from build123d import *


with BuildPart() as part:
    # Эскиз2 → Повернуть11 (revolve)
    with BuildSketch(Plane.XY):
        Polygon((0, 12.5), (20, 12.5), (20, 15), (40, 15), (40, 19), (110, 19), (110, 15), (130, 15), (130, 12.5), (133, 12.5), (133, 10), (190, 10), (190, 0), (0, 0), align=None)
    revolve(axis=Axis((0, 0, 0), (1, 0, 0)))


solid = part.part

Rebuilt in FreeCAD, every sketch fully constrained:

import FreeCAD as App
import Part
import Sketcher
from FreeCAD import Vector

doc = App.newDocument("Part")
body = doc.addObject("PartDesign::Body", "Body")

# Sketch on XY plane
sketch1 = body.newObject("Sketcher::SketchObject", "Sketch")
sketch1.AttachmentSupport = (doc.getObject("XY_Plane"), [""])
sketch1.MapMode = "FlatFace"
sketch1.addGeometry([
    Part.LineSegment(Vector(20, 12.5, 0), Vector(0, 12.5, 0)),  # 0
    Part.LineSegment(Vector(0, 12.5, 0), Vector(0, 0, 0)),  # 1
    Part.LineSegment(Vector(0, 0, 0), Vector(190, 0, 0)),  # 2
    Part.LineSegment(Vector(190, 0, 0), Vector(190, 10, 0)),  # 3
    Part.LineSegment(Vector(190, 10, 0), Vector(133, 10, 0)),  # 4
    Part.LineSegment(Vector(133, 10, 0), Vector(133, 12.5, 0)),  # 5
    Part.LineSegment(Vector(133, 12.5, 0), Vector(130, 12.5, 0)),  # 6
    Part.LineSegment(Vector(130, 12.5, 0), Vector(130, 15, 0)),  # 7
    Part.LineSegment(Vector(130, 15, 0), Vector(110, 15, 0)),  # 8
    Part.LineSegment(Vector(110, 15, 0), Vector(110, 19, 0)),  # 9
    Part.LineSegment(Vector(110, 19, 0), Vector(40, 19, 0)),  # 10
    Part.LineSegment(Vector(40, 19, 0), Vector(40, 15, 0)),  # 11
    Part.LineSegment(Vector(40, 15, 0), Vector(20, 15, 0)),  # 12
    Part.LineSegment(Vector(20, 15, 0), Vector(20, 12.5, 0)),  # 13
], False)
sketch1.addConstraint([
    Sketcher.Constraint("Coincident", 0, 2, 1, 1),
    Sketcher.Constraint("Coincident", 1, 2, 2, 1),
    Sketcher.Constraint("Coincident", 2, 2, 3, 1),
    Sketcher.Constraint("Coincident", 3, 2, 4, 1),
    Sketcher.Constraint("Coincident", 4, 2, 5, 1),
    Sketcher.Constraint("Coincident", 5, 2, 6, 1),
    Sketcher.Constraint("Coincident", 6, 2, 7, 1),
    Sketcher.Constraint("Coincident", 7, 2, 8, 1),
    Sketcher.Constraint("Coincident", 8, 2, 9, 1),
    Sketcher.Constraint("Coincident", 9, 2, 10, 1),
    Sketcher.Constraint("Coincident", 10, 2, 11, 1),
    Sketcher.Constraint("Coincident", 11, 2, 12, 1),
    Sketcher.Constraint("Coincident", 12, 2, 13, 1),
    Sketcher.Constraint("Coincident", 13, 2, 0, 1),
    Sketcher.Constraint("Horizontal", 0),
    Sketcher.Constraint("Vertical", 1),
    Sketcher.Constraint("Horizontal", 2),
    Sketcher.Constraint("Vertical", 3),
    Sketcher.Constraint("Horizontal", 4),
    Sketcher.Constraint("Vertical", 5),
    Sketcher.Constraint("Horizontal", 6),
    Sketcher.Constraint("Vertical", 7),
    Sketcher.Constraint("Horizontal", 8),
    Sketcher.Constraint("Vertical", 9),
    Sketcher.Constraint("Horizontal", 10),
    Sketcher.Constraint("Vertical", 11),
    Sketcher.Constraint("Horizontal", 12),
    Sketcher.Constraint("Vertical", 13),
    Sketcher.Constraint("Coincident", 1, 2, -1, 1),
    Sketcher.Constraint("Horizontal", 0, 2, 5, 2),
    Sketcher.Constraint("Horizontal", 8, 2, 11, 2),
    Sketcher.Constraint("Equal", 0, 8),
    Sketcher.Constraint("Equal", 8, 12),
    Sketcher.Constraint("Equal", 5, 7),
    Sketcher.Constraint("DistanceX", 0, 2, 0, 1, 20.0),
    Sketcher.Constraint("DistanceX", 2, 1, 2, 2, 190.0),
    Sketcher.Constraint("DistanceX", 4, 2, 4, 1, 57.0),
    Sketcher.Constraint("DistanceX", 6, 2, 6, 1, 3.0),
    Sketcher.Constraint("DistanceY", 3, 1, 3, 2, 10.0),
    Sketcher.Constraint("DistanceY", 9, 1, 9, 2, 4.0),
    Sketcher.Constraint("DistanceY", 1, 2, 1, 1, 12.5),
])
revolution = body.newObject("PartDesign::Revolution", "Revolution")
revolution.Profile = sketch1
revolution.ReferenceAxis = (sketch1, ["H_Axis"])
revolution.Angle = 360

doc.recompute()
